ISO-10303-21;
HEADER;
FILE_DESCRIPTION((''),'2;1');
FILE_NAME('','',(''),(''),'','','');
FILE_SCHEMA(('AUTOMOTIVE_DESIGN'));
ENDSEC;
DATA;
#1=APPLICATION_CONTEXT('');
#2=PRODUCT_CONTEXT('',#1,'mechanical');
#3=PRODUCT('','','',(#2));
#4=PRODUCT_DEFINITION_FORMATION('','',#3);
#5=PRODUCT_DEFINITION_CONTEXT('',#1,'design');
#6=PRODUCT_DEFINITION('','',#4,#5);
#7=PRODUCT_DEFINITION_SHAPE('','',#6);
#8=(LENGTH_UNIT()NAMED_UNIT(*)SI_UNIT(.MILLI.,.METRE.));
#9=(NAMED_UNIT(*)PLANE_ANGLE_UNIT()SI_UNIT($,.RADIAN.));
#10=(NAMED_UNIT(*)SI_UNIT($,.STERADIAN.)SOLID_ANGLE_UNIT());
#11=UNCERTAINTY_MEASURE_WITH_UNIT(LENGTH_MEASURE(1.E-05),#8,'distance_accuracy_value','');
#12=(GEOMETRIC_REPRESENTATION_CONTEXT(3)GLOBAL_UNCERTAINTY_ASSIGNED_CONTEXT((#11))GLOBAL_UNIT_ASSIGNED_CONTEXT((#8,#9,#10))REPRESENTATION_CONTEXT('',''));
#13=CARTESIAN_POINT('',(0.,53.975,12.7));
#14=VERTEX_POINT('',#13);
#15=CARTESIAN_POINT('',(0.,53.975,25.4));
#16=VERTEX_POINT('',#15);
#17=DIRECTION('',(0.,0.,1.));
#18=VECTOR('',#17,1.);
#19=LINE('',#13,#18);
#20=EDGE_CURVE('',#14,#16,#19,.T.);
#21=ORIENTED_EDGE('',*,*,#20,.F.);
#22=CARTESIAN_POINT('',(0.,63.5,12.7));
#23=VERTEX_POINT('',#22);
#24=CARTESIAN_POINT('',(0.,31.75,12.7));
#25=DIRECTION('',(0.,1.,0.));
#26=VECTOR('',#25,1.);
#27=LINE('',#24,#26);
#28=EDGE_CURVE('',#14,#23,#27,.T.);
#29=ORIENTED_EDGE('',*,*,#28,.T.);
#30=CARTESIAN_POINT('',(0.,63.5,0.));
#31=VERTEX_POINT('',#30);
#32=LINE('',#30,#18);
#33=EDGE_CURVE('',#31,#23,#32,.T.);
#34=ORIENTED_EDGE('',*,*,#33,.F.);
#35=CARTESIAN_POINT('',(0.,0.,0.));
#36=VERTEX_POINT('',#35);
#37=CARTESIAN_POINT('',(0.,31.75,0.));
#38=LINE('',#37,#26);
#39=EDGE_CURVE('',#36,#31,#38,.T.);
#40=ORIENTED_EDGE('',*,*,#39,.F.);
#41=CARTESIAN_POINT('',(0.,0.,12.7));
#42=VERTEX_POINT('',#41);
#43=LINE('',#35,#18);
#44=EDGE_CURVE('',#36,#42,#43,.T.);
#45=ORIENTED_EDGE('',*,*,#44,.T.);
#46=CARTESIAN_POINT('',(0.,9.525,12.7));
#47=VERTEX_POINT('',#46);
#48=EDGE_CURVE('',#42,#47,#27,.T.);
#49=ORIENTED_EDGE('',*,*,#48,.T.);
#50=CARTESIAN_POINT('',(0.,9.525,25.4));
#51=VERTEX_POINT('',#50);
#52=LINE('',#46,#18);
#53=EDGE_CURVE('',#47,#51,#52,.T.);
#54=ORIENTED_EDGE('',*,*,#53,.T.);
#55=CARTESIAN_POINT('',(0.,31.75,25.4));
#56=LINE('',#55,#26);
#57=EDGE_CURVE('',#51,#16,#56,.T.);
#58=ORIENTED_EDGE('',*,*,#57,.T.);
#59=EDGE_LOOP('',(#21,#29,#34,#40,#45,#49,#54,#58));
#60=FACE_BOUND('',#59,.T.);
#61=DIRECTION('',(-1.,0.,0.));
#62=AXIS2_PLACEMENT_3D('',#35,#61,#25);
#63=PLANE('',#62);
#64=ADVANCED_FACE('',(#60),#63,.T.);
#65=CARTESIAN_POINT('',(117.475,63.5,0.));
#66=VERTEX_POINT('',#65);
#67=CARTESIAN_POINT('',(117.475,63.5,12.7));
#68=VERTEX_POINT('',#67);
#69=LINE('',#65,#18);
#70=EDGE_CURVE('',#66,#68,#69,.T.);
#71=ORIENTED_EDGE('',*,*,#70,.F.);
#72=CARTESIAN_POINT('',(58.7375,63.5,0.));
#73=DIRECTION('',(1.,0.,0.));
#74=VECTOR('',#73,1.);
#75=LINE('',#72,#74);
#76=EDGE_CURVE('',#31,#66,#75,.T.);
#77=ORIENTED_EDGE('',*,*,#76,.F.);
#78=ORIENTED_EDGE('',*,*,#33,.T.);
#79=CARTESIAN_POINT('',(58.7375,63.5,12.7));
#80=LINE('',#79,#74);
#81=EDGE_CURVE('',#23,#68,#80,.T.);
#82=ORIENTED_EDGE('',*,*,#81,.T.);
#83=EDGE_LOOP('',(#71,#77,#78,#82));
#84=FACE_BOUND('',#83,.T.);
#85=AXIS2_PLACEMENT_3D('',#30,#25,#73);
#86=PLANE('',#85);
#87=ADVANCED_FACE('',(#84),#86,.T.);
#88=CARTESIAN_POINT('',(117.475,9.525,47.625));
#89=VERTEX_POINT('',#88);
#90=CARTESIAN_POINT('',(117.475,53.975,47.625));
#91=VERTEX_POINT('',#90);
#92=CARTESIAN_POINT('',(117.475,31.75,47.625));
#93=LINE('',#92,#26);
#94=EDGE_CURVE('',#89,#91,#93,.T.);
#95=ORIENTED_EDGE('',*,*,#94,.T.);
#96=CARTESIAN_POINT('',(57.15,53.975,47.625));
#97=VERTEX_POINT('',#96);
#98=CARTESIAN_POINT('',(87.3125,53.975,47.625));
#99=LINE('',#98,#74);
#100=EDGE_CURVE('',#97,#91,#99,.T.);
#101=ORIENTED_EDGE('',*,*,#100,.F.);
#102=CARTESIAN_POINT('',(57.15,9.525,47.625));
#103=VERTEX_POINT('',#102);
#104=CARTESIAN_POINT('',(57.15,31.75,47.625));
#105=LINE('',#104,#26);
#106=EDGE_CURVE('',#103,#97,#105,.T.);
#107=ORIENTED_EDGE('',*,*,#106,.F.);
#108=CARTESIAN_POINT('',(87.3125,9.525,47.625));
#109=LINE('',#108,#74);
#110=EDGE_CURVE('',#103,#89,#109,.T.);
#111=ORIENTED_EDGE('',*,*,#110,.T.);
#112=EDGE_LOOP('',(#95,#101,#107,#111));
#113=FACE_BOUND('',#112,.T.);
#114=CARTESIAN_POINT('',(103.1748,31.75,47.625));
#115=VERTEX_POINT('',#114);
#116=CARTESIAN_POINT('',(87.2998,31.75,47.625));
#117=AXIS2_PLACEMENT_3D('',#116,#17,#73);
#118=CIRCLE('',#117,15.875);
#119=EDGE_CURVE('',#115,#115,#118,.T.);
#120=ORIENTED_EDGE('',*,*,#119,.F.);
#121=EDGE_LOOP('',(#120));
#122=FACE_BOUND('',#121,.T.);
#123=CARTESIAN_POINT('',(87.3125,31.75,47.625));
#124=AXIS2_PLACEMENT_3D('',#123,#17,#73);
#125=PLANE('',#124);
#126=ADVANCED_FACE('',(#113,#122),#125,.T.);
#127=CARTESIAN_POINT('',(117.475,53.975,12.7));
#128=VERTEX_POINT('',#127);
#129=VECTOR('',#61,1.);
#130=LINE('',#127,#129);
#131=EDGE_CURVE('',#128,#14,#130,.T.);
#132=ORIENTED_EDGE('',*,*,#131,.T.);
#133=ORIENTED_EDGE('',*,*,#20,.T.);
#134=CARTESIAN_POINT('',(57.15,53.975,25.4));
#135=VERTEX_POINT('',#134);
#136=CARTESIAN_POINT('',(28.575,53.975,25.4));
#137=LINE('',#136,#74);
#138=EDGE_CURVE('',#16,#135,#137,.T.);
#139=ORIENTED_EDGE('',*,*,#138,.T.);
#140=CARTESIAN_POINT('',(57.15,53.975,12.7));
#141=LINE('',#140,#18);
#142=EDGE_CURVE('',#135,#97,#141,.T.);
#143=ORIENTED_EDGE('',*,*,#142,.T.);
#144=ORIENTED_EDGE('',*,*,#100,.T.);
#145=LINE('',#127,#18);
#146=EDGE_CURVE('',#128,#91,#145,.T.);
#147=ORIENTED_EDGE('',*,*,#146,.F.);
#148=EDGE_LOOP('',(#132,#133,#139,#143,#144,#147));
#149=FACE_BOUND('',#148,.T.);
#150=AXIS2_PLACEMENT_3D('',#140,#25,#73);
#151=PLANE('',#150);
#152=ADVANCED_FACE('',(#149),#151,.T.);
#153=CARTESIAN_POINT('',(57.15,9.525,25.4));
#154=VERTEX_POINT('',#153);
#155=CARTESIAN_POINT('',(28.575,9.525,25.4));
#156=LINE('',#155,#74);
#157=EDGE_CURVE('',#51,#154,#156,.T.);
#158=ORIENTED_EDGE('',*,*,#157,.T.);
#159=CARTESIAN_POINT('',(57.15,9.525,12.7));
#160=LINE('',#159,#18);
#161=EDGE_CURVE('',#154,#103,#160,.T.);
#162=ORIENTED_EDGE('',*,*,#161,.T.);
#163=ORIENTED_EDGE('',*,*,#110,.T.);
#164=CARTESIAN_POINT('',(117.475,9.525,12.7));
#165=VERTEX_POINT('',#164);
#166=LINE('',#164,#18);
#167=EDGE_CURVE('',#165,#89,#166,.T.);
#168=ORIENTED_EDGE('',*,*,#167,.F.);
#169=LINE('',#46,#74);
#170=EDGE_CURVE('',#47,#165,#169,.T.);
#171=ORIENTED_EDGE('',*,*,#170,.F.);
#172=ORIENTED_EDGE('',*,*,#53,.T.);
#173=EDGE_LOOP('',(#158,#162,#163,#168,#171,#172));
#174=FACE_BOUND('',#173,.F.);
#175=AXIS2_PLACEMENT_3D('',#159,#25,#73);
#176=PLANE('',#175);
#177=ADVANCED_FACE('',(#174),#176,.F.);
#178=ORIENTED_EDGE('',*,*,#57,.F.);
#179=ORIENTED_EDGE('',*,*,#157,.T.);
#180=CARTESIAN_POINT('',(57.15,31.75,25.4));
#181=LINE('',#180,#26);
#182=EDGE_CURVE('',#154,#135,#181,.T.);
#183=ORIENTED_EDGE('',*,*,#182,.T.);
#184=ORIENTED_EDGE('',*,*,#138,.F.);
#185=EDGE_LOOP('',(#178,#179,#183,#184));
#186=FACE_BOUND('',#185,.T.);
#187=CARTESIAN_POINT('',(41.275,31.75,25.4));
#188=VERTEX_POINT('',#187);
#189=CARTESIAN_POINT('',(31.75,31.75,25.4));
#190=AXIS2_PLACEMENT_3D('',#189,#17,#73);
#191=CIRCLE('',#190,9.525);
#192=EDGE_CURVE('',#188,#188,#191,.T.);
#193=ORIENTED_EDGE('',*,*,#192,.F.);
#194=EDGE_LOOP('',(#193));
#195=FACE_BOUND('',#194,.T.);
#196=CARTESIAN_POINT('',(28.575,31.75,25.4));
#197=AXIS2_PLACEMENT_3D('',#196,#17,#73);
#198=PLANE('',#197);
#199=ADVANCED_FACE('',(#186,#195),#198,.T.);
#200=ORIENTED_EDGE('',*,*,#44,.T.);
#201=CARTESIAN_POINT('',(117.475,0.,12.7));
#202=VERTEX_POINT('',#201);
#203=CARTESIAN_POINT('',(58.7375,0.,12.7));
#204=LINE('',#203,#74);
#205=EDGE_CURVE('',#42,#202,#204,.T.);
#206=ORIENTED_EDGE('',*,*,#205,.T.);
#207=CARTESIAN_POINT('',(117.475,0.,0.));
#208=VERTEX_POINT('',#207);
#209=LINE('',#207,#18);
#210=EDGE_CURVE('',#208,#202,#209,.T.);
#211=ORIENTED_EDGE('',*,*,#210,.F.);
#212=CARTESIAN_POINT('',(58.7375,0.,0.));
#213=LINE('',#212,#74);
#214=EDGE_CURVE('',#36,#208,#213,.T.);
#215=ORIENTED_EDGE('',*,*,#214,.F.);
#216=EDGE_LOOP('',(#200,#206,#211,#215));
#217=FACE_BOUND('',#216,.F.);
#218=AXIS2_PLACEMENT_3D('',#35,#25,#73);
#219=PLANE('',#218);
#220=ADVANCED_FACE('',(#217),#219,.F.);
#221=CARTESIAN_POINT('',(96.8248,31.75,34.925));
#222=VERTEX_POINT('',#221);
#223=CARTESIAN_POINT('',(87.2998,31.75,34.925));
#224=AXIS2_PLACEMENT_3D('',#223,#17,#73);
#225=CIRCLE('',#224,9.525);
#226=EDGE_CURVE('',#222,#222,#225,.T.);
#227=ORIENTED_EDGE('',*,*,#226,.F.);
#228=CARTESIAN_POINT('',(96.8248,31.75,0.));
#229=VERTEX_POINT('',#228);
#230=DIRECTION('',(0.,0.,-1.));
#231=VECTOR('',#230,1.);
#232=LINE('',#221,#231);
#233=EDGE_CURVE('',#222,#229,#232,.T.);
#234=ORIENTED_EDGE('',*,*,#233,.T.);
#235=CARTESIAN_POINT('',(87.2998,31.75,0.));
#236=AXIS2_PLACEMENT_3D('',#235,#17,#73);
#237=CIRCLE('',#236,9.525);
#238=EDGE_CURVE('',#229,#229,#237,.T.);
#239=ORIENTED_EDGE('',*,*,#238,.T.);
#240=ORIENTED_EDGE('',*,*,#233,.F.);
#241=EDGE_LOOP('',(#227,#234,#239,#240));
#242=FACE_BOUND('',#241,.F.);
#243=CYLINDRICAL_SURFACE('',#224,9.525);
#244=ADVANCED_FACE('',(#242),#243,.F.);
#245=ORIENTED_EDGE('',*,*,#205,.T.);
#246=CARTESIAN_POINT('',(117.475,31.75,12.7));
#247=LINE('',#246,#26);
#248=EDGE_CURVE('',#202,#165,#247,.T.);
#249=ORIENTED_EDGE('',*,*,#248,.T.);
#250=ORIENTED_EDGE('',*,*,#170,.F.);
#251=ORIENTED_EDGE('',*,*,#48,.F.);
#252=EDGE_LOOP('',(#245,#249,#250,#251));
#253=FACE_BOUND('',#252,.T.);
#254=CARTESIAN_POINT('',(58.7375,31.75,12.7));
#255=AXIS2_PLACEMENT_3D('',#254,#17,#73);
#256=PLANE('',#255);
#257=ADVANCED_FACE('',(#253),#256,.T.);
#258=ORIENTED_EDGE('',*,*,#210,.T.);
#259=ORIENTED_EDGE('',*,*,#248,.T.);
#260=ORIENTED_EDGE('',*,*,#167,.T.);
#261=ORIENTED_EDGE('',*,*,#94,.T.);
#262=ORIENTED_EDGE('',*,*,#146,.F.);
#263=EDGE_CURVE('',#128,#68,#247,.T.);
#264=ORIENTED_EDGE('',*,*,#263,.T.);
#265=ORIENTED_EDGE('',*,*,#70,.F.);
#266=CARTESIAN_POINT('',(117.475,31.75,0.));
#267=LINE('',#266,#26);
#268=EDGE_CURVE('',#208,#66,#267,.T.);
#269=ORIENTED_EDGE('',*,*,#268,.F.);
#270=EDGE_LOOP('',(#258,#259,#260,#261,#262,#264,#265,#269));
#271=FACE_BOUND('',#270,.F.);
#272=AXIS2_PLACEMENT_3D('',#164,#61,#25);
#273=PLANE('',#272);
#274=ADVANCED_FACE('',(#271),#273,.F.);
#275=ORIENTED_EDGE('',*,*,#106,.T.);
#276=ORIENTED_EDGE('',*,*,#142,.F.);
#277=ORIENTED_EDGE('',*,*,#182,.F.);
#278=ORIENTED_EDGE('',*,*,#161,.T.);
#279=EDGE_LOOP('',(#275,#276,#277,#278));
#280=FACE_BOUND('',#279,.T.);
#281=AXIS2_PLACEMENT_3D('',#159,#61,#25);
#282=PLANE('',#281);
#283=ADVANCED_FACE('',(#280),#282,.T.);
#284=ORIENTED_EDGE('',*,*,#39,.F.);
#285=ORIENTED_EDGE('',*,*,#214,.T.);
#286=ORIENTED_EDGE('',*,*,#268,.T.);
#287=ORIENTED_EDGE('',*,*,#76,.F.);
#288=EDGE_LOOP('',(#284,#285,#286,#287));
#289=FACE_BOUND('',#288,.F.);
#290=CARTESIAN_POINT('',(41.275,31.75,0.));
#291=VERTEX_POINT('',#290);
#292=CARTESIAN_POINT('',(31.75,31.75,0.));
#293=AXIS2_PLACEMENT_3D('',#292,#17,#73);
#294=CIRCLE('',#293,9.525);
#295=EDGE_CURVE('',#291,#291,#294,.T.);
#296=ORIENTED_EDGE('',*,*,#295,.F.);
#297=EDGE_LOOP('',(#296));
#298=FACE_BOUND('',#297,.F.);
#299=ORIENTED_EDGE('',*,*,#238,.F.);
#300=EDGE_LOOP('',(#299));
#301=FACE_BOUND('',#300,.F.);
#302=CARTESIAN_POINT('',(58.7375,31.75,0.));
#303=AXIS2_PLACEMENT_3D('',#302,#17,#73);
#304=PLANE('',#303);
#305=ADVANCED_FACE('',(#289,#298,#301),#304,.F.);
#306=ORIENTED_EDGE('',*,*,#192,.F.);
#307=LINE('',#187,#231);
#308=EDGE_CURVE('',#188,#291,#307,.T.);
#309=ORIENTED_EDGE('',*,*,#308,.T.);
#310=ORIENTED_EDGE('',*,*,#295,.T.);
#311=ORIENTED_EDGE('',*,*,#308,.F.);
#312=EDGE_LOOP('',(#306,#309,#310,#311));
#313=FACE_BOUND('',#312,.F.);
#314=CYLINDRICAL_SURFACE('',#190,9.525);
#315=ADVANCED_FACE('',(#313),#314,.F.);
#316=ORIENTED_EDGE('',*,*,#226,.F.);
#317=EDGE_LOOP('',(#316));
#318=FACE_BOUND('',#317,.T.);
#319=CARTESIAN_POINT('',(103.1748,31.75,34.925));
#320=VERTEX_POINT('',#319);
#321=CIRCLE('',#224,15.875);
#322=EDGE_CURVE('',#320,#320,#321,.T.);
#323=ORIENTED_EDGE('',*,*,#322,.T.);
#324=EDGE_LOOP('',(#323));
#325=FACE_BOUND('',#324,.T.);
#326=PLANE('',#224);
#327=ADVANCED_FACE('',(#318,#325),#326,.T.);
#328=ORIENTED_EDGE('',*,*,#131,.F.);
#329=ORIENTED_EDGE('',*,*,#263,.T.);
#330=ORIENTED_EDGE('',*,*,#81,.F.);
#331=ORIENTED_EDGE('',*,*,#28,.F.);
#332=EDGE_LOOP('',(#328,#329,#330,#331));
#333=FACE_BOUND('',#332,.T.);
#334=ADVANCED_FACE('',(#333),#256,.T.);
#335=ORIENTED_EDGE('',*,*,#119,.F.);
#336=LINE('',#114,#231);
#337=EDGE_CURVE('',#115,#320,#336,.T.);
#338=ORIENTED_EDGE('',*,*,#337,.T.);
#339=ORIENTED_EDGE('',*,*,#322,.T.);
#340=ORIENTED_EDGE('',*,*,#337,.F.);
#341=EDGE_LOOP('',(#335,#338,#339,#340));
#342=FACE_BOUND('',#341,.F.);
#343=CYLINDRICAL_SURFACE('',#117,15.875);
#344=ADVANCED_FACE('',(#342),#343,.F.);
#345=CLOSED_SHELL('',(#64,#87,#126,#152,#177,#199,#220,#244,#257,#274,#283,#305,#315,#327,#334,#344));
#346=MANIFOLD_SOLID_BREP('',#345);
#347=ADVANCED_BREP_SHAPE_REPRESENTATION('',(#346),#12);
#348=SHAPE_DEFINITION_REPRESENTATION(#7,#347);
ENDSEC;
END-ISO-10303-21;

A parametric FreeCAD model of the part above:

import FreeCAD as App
import Part
import Sketcher

V = App.Vector
Q = App.Units.Quantity


def add_polygon(sketch, points):
    """Adds a closed chain of lines whose ends are joined by coincident constraints."""
    first, n = sketch.GeometryCount, len(points)
    for a, b in zip(points, points[1:] + points[:1]):
        sketch.addGeometry(Part.LineSegment(App.Vector(*a, 0), App.Vector(*b, 0)), False)
    for i in range(n):
        sketch.addConstraint(Sketcher.Constraint("Coincident", first + i, 2, first + (i + 1) % n, 1))

doc = App.newDocument("Part")
params = doc.addObject("Spreadsheet::Sheet", "Params")
for row, (alias, value) in enumerate([
    ("sketch1_height", "2.5 in"),
    ("sketch1_width", "4.625 in"),
    ("pad1_length", "0.5 in"),
    ("sketch2_width", "2.25 in"),
    ("sketch2_height", "1.75 in"),
    ("pad2_length", "0.5 in"),
    ("sketch3_height", "1.75 in"),
    ("sketch3_width", "2.375 in"),
    ("pad3_length", "1.375 in"),
    ("sketch4_diameter", "0.75 in"),
    ("pocket1_length", "1 in"),
    ("sketch5_diameter", "1.25 in"),
    ("pocket2_length", "0.5 in"),
    ("sketch6_diameter", "0.75 in"),
    ("pocket3_length", "2 in"),
], start=1):
    params.set(f"A{row}", alias)
    params.set(f"B{row}", "=" + value)
    params.setAlias(f"B{row}", alias)

body = doc.addObject("PartDesign::Body", "Body")

# Sketch on XY plane
sketch1 = body.newObject("Sketcher::SketchObject", "Sketch")
sketch1.AttachmentSupport = (doc.getObject("XY_Plane"), [""])
sketch1.MapMode = "FlatFace"
add_polygon(sketch1, [(0, 64), (0, 0), (117, 0), (117, 64)])  # lines 0-3
sketch1.addConstraint([
    Sketcher.Constraint("Vertical", 0),
    Sketcher.Constraint("Horizontal", 1),
    Sketcher.Constraint("Vertical", 2),
    Sketcher.Constraint("Horizontal", 3),
    Sketcher.Constraint("Coincident", 0, 2, -1, 1),
    Sketcher.Constraint("DistanceY", 0, 2, 0, 1, Q("2.5 in")),
    Sketcher.Constraint("DistanceX", 1, 1, 1, 2, Q("4.625 in")),
])
sketch1.setExpression("Constraints[9]", "Params.sketch1_height")
sketch1.setExpression("Constraints[10]", "Params.sketch1_width")
pad1 = body.newObject("PartDesign::Pad", "Pad")
pad1.Profile = sketch1
pad1.setExpression("Length", "Params.pad1_length")

# Sketch on XY plane
sketch2 = body.newObject("Sketcher::SketchObject", "Sketch001")
sketch2.AttachmentSupport = (doc.getObject("XY_Plane"), [""])
sketch2.MapMode = "FlatFace"
sketch2.AttachmentOffset = App.Placement(V(0, 0, 0.5 * 25.4), App.Rotation())
add_polygon(sketch2, [(0, 54), (0, 10), (57, 10), (57, 54)])  # lines 0-3
sketch2.addConstraint([
    Sketcher.Constraint("Vertical", 0),
    Sketcher.Constraint("Horizontal", 1),
    Sketcher.Constraint("Vertical", 2),
    Sketcher.Constraint("Horizontal", 3),
    Sketcher.Constraint("PointOnObject", 0, 2, -2),
    Sketcher.Constraint("DistanceX", 1, 1, 1, 2, Q("2.25 in")),
    Sketcher.Constraint("DistanceY", 0, 2, 0, 1, Q("1.75 in")),
    Sketcher.Constraint("DistanceY", -1, 1, 0, 2, Q("0.375 in")),
])
sketch2.setExpression("Constraints[9]", "Params.sketch2_width")
sketch2.setExpression("Constraints[10]", "Params.sketch2_height")
pad2 = body.newObject("PartDesign::Pad", "Pad001")
pad2.Profile = sketch2
pad2.setExpression("Length", "Params.pad2_length")

# Sketch on XY plane
sketch3 = body.newObject("Sketcher::SketchObject", "Sketch002")
sketch3.AttachmentSupport = (doc.getObject("XY_Plane"), [""])
sketch3.MapMode = "FlatFace"
sketch3.AttachmentOffset = App.Placement(V(0, 0, 0.5 * 25.4), App.Rotation())
add_polygon(sketch3, [(57, 54), (57, 10), (117, 10), (117, 54)])  # lines 0-3
sketch3.addConstraint([
    Sketcher.Constraint("Vertical", 0),
    Sketcher.Constraint("Horizontal", 1),
    Sketcher.Constraint("Vertical", 2),
    Sketcher.Constraint("Horizontal", 3),
    Sketcher.Constraint("DistanceY", 0, 2, 0, 1, Q("1.75 in")),
    Sketcher.Constraint("DistanceX", 1, 1, 1, 2, Q("2.375 in")),
    Sketcher.Constraint("DistanceX", -1, 1, 0, 2, Q("2.25 in")),
    Sketcher.Constraint("DistanceY", -1, 1, 0, 2, Q("0.375 in")),
])
sketch3.setExpression("Constraints[8]", "Params.sketch3_height")
sketch3.setExpression("Constraints[9]", "Params.sketch3_width")
pad3 = body.newObject("PartDesign::Pad", "Pad002")
pad3.Profile = sketch3
pad3.setExpression("Length", "Params.pad3_length")

# Sketch on XY plane
sketch4 = body.newObject("Sketcher::SketchObject", "Sketch003")
sketch4.AttachmentSupport = (doc.getObject("XY_Plane"), [""])
sketch4.MapMode = "FlatFace"
sketch4.AttachmentOffset = App.Placement(V(0, 0, 1 * 25.4), App.Rotation())
sketch4.addGeometry(Part.Circle(V(32, 32, 0), V(0, 0, 1), 10), False)
sketch4.addConstraint([
    Sketcher.Constraint("Diameter", 0, Q("0.75 in")),
    Sketcher.Constraint("DistanceX", -1, 1, 0, 3, Q("1.25 in")),
    Sketcher.Constraint("DistanceY", -1, 1, 0, 3, Q("1.25 in")),
])
sketch4.setExpression("Constraints[0]", "Params.sketch4_diameter")
pocket1 = body.newObject("PartDesign::Pocket", "Pocket")
pocket1.Profile = sketch4
pocket1.setExpression("Length", "Params.pocket1_length")

# Sketch on XY plane
sketch5 = body.newObject("Sketcher::SketchObject", "Sketch004")
sketch5.AttachmentSupport = (doc.getObject("XY_Plane"), [""])
sketch5.MapMode = "FlatFace"
sketch5.AttachmentOffset = App.Placement(V(0, 0, 1.875 * 25.4), App.Rotation())
sketch5.addGeometry(Part.Circle(V(87, 32, 0), V(0, 0, 1), 16), False)
sketch5.addConstraint([
    Sketcher.Constraint("Diameter", 0, Q("1.25 in")),
    Sketcher.Constraint("DistanceY", -1, 1, 0, 3, Q("1.25 in")),
    Sketcher.Constraint("DistanceX", -1, 1, 0, 3, Q("3.437 in")),
])
sketch5.setExpression("Constraints[0]", "Params.sketch5_diameter")
pocket2 = body.newObject("PartDesign::Pocket", "Pocket001")
pocket2.Profile = sketch5
pocket2.setExpression("Length", "Params.pocket2_length")

# Sketch on XY plane
sketch6 = body.newObject("Sketcher::SketchObject", "Sketch005")
sketch6.AttachmentSupport = (doc.getObject("XY_Plane"), [""])
sketch6.MapMode = "FlatFace"
sketch6.AttachmentOffset = App.Placement(V(0, 0, 1.375 * 25.4), App.Rotation())
sketch6.addGeometry(Part.Circle(V(87, 32, 0), V(0, 0, 1), 10), False)
sketch6.addConstraint([
    Sketcher.Constraint("Diameter", 0, Q("0.75 in")),
    Sketcher.Constraint("DistanceY", -1, 1, 0, 3, Q("1.25 in")),
    Sketcher.Constraint("DistanceX", -1, 1, 0, 3, Q("3.437 in")),
])
sketch6.setExpression("Constraints[0]", "Params.sketch6_diameter")
pocket3 = body.newObject("PartDesign::Pocket", "Pocket002")
pocket3.Profile = sketch6
pocket3.setExpression("Length", "Params.pocket3_length")

doc.recompute()
